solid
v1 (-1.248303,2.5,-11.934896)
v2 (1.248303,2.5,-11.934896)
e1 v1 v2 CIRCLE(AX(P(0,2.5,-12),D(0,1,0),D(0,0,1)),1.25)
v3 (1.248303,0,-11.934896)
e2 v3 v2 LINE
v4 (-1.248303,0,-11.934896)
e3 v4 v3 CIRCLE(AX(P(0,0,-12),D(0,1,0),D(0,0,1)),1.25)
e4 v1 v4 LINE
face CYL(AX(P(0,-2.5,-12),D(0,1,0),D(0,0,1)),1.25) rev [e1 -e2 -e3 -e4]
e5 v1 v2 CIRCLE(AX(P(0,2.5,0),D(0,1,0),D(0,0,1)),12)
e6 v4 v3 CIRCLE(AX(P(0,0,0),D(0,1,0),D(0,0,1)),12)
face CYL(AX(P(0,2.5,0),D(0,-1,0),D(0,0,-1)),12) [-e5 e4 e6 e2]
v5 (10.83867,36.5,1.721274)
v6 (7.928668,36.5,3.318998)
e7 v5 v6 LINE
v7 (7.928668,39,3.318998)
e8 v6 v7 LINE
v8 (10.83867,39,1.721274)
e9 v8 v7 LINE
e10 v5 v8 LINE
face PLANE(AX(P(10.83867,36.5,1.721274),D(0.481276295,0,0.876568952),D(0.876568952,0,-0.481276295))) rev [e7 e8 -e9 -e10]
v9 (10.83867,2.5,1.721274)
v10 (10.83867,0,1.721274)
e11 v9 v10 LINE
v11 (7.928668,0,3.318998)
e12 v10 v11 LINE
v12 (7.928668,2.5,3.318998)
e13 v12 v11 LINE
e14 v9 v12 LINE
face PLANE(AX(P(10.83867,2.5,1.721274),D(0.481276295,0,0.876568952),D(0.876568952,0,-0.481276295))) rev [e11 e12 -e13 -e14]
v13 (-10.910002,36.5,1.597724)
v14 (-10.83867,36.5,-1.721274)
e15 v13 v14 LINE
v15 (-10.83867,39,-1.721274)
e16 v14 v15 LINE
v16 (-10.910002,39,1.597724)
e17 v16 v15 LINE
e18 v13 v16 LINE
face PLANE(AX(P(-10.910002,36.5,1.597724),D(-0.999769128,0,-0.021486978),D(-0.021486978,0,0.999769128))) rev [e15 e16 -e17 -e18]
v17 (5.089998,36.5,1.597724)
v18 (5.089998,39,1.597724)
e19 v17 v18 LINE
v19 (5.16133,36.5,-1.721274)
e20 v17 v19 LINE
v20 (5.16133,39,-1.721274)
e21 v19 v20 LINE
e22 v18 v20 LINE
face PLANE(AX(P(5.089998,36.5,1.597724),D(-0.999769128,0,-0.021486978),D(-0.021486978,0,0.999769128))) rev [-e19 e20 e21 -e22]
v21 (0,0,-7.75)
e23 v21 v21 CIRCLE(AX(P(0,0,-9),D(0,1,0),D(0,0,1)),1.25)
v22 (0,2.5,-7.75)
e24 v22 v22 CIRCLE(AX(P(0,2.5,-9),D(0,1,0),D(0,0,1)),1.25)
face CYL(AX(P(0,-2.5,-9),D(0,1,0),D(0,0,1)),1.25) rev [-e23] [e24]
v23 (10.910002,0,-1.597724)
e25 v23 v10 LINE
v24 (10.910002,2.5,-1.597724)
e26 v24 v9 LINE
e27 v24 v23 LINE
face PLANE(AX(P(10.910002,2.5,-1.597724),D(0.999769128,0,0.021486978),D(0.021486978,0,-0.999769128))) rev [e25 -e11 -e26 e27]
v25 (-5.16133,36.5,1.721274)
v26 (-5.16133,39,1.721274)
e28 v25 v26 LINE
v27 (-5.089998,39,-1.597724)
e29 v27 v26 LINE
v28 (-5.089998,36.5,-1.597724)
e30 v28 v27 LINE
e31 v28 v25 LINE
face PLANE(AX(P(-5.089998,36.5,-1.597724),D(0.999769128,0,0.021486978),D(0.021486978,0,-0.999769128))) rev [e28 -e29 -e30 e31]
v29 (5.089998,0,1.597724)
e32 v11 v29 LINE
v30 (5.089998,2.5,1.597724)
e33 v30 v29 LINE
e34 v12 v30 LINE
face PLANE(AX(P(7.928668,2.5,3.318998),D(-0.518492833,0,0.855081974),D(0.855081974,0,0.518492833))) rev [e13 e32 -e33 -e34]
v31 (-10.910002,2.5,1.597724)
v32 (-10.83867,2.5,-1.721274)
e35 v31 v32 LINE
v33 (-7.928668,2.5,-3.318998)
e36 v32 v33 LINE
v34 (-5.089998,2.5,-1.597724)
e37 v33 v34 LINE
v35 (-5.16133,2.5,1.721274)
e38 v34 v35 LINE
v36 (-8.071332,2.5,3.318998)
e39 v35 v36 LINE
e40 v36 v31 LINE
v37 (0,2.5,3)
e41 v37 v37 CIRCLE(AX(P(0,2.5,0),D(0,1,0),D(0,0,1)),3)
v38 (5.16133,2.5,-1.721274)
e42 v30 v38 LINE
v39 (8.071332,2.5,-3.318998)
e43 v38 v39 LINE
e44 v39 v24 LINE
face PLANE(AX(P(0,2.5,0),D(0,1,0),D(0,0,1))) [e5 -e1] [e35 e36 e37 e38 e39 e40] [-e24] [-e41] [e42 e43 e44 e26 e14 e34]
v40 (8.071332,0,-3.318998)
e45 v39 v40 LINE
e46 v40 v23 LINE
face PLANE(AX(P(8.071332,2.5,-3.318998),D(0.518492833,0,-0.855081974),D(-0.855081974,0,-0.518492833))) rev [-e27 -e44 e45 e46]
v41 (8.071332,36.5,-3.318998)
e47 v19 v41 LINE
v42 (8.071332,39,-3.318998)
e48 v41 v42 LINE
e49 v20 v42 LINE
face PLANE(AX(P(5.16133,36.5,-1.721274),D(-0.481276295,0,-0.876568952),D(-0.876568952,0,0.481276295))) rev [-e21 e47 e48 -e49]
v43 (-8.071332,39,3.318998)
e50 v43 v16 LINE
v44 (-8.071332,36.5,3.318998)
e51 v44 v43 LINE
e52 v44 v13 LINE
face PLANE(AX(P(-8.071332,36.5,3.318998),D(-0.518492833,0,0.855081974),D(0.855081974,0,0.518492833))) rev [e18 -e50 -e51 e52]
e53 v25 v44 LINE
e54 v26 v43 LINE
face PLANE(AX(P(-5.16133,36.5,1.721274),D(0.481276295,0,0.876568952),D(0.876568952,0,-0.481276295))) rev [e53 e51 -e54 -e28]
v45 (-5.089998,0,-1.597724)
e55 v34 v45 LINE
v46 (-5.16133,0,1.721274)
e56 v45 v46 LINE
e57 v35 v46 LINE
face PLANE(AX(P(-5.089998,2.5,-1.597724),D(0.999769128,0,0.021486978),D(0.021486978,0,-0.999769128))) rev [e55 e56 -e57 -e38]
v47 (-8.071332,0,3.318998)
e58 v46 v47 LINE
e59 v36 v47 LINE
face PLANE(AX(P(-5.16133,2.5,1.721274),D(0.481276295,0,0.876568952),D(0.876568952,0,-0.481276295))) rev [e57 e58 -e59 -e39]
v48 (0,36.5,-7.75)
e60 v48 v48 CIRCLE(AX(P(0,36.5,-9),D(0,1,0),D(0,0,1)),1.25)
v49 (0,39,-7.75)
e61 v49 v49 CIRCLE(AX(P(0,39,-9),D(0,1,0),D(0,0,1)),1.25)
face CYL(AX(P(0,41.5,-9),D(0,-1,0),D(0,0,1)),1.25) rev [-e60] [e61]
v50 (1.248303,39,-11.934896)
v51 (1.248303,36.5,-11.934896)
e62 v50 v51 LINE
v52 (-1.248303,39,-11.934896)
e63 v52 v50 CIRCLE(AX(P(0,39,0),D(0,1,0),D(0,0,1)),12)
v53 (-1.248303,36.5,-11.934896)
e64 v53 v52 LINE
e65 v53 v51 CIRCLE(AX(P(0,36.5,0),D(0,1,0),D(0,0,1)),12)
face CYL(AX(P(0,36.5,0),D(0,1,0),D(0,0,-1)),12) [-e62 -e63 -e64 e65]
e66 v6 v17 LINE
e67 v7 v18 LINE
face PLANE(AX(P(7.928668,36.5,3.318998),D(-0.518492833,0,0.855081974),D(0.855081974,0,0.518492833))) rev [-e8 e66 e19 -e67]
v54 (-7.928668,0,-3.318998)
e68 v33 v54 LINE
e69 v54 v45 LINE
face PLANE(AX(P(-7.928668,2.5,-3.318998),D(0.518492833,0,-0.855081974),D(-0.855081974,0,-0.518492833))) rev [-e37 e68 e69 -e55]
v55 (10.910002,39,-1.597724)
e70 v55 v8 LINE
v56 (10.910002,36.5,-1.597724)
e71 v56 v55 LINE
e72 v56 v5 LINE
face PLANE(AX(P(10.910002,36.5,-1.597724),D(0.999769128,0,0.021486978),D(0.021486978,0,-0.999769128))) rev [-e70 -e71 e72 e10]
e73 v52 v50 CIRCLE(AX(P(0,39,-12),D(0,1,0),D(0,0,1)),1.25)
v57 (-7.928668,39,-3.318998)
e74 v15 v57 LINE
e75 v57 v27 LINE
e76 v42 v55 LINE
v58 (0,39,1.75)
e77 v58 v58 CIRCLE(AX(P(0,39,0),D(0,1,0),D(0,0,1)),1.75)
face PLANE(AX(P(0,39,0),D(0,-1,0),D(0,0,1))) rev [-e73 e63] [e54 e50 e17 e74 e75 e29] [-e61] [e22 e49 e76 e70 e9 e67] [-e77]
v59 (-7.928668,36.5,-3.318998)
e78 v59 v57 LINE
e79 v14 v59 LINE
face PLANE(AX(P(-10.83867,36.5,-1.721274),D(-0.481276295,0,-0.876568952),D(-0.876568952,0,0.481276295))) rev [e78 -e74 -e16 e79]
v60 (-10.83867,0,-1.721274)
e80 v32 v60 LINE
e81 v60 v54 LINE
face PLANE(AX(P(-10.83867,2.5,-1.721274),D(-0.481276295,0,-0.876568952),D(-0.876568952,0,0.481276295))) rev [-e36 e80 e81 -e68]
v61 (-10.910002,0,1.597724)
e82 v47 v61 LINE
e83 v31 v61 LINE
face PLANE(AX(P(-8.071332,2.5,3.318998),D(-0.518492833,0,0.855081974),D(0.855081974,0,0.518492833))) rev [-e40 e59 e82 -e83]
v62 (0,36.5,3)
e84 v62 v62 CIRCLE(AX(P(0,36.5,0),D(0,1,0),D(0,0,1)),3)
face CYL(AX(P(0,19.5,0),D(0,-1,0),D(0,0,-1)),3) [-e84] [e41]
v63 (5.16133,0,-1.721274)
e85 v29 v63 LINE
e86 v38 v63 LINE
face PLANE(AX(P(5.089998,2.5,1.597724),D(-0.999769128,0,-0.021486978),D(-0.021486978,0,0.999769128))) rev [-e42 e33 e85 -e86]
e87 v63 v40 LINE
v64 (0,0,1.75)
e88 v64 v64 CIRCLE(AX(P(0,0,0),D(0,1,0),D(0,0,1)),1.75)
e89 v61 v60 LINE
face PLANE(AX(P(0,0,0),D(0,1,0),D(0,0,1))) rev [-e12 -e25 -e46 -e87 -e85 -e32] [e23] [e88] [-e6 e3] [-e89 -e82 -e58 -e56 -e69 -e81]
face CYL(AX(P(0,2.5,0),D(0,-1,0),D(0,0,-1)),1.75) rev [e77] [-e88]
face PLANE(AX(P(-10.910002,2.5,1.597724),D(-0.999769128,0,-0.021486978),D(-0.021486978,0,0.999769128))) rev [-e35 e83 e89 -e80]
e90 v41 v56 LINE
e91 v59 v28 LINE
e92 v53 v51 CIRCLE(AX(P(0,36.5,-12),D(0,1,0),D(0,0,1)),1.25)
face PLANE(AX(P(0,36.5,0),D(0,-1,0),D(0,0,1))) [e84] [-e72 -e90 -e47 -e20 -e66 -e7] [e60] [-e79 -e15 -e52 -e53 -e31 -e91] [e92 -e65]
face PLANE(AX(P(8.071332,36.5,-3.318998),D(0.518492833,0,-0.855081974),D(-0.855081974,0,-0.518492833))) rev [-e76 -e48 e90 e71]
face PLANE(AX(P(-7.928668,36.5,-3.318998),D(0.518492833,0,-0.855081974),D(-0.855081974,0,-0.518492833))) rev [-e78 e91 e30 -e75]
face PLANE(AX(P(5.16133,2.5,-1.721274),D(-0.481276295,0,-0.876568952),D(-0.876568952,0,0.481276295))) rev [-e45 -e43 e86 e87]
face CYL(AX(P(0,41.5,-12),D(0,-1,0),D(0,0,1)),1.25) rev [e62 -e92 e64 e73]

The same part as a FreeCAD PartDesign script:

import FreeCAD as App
import Part
import Sketcher

V = App.Vector
Q = App.Units.Quantity


def add_polygon(sketch, points):
    """Adds a closed chain of lines whose ends are joined by coincident constraints."""
    first, n = sketch.GeometryCount, len(points)
    for a, b in zip(points, points[1:] + points[:1]):
        sketch.addGeometry(Part.LineSegment(App.Vector(*a, 0), App.Vector(*b, 0)), False)
    for i in range(n):
        sketch.addConstraint(Sketcher.Constraint("Coincident", first + i, 2, first + (i + 1) % n, 1))

doc = App.newDocument("Part")
params = doc.addObject("Spreadsheet::Sheet", "Params")
for row, (alias, value) in enumerate([
    ("sketch1_diameter", "24 mm"),
    ("sketch1_diameter2", "3.5 mm"),
    ("pad1_length", "2.5 mm"),
    ("pocket1_length", "2.5 mm"),
    ("sketch3_diameter", "2.5 mm"),
    ("pocket2_length", "5 mm"),
    ("sketch4_diameter", "6 mm"),
    ("sketch4_diameter2", "3.5 mm"),
    ("pad2_length", "17 mm"),
], start=1):
    params.set(f"A{row}", alias)
    params.set(f"B{row}", "=" + value)
    params.setAlias(f"B{row}", alias)

body = doc.addObject("PartDesign::Body", "Body")

# Sketch on XZ plane
sketch1 = body.newObject("Sketcher::SketchObject", "Sketch")
sketch1.AttachmentSupport = (doc.getObject("XZ_Plane"), [""])
sketch1.MapMode = "FlatFace"
sketch1.addGeometry(Part.Circle(V(0, 0, 0), V(0, 0, 1), 12), False)
sketch1.addGeometry(Part.Circle(V(0, 0, 0), V(0, 0, 1), 1.8), False)
sketch1.addConstraint(Sketcher.Constraint("Coincident", 0, 3, -1, 1))
sketch1.addConstraint(Sketcher.Constraint("Coincident", 1, 3, -1, 1))
sketch1.addConstraint(Sketcher.Constraint("Diameter", 0, Q("24 mm")))
sketch1.addConstraint(Sketcher.Constraint("Diameter", 1, Q("3.5 mm")))
sketch1.setExpression("Constraints[2]", "Params.sketch1_diameter")
sketch1.setExpression("Constraints[3]", "Params.sketch1_diameter2")
pad1 = body.newObject("PartDesign::Pad", "Pad")
pad1.Profile = sketch1
pad1.setExpression("Length", "Params.pad1_length")
pad1.Reversed = True

# Sketch on XZ plane
sketch2 = body.newObject("Sketcher::SketchObject", "Sketch001")
sketch2.AttachmentSupport = (doc.getObject("XZ_Plane"), [""])
sketch2.MapMode = "FlatFace"
add_polygon(sketch2, [(-5.2, 1.7), (-8.1, 3.3), (-10.9, 1.6), (-10.8, -1.7), (-7.9, -3.3), (-5.1, -1.6)])  # lines 0-5
add_polygon(sketch2, [(5.2, -1.7), (8.1, -3.3), (10.9, -1.6), (10.8, 1.7), (7.9, 3.3), (5.1, 1.6)])  # lines 6-11
sketch2.addConstraint(Sketcher.Constraint("Symmetric", 0, 2, 6, 2, -1, 1))
sketch2.addConstraint(Sketcher.Constraint("Symmetric", 1, 2, 7, 2, -1, 1))
sketch2.addConstraint(Sketcher.Constraint("Symmetric", 2, 2, 8, 2, -1, 1))
sketch2.addConstraint(Sketcher.Constraint("Symmetric", 3, 2, 9, 2, -1, 1))
sketch2.addConstraint(Sketcher.Constraint("Symmetric", 4, 2, 10, 2, -1, 1))
sketch2.addConstraint(Sketcher.Constraint("Symmetric", 5, 2, 11, 2, -1, 1))
sketch2.addConstraint(Sketcher.Constraint("Parallel", 0, 3))
sketch2.addConstraint(Sketcher.Constraint("Parallel", 1, 4))
sketch2.addConstraint(Sketcher.Constraint("Parallel", 2, 5))
sketch2.addConstraint(Sketcher.Constraint("Horizontal", 3, 2, 6, 2))
sketch2.addConstraint(Sketcher.Constraint("Horizontal", 4, 2, 7, 2))
sketch2.addConstraint(Sketcher.Constraint("Equal", 0, 1))
sketch2.addConstraint(Sketcher.Constraint("Equal", 1, 2))
sketch2.addConstraint(Sketcher.Constraint("DistanceX", 3, 2, 6, 2, Q("16 mm")))
sketch2.addConstraint(Sketcher.Constraint("DistanceX", 0, 2, -1, 1, Q("8.071332 mm")))
sketch2.addConstraint(Sketcher.Constraint("DistanceX", 2, 2, -1, 1, Q("10.83867 mm")))
sketch2.addConstraint(Sketcher.Constraint("DistanceX", 1, 2, 0, 2, Q("2.83867 mm")))
sketch2.addConstraint(Sketcher.Constraint("DistanceY", 2, 2, 0, 2, Q("5.040271 mm")))
pocket1 = body.newObject("PartDesign::Pocket", "Pocket")
pocket1.Profile = sketch2
pocket1.setExpression("Length", "Params.pocket1_length")

# Sketch on XZ plane
sketch3 = body.newObject("Sketcher::SketchObject", "Sketch002")
sketch3.AttachmentSupport = (doc.getObject("XZ_Plane"), [""])
sketch3.MapMode = "FlatFace"
sketch3.AttachmentOffset = App.Placement(V(0, 0, -2.5), App.Rotation())
sketch3.addGeometry(Part.Circle(V(0, -9, 0), V(0, 0, 1), 1.2), False)
sketch3.addGeometry(Part.Circle(V(0, -12, 0), V(0, 0, 1), 1.2), False)
sketch3.addConstraint(Sketcher.Constraint("Equal", 0, 1))
sketch3.addConstraint(Sketcher.Constraint("PointOnObject", 0, 3, -2))
sketch3.addConstraint(Sketcher.Constraint("PointOnObject", 1, 3, -2))
sketch3.addConstraint(Sketcher.Constraint("Diameter", 0, Q("2.5 mm")))
sketch3.addConstraint(Sketcher.Constraint("DistanceY", 0, 3, -1, 1, Q("9 mm")))
sketch3.addConstraint(Sketcher.Constraint("DistanceY", 1, 3, -1, 1, Q("12 mm")))
sketch3.setExpression("Constraints[3]", "Params.sketch3_diameter")
pocket2 = body.newObject("PartDesign::Pocket", "Pocket001")
pocket2.Profile = sketch3
pocket2.setExpression("Length", "Params.pocket2_length")
pocket2.Reversed = True

# Sketch on XZ plane
sketch4 = body.newObject("Sketcher::SketchObject", "Sketch003")
sketch4.AttachmentSupport = (doc.getObject("XZ_Plane"), [""])
sketch4.MapMode = "FlatFace"
sketch4.AttachmentOffset = App.Placement(V(0, 0, -2.5), App.Rotation())
sketch4.addGeometry(Part.Circle(V(0, 0, 0), V(0, 0, 1), 3), False)
sketch4.addGeometry(Part.Circle(V(0, 0, 0), V(0, 0, 1), 1.8), False)
sketch4.addConstraint(Sketcher.Constraint("Coincident", 0, 3, -1, 1))
sketch4.addConstraint(Sketcher.Constraint("Coincident", 1, 3, -1, 1))
sketch4.addConstraint(Sketcher.Constraint("Diameter", 0, Q("6 mm")))
sketch4.addConstraint(Sketcher.Constraint("Diameter", 1, Q("3.5 mm")))
sketch4.setExpression("Constraints[2]", "Params.sketch4_diameter")
sketch4.setExpression("Constraints[3]", "Params.sketch4_diameter2")
pad2 = body.newObject("PartDesign::Pad", "Pad001")
pad2.Profile = sketch4
pad2.setExpression("Length", "Params.pad2_length")
pad2.Reversed = True
body2 = doc.addObject("PartDesign::Body", "Body001")
doc.recompute()

body2.BaseFeature = body
doc.recompute()

mirroring = doc.addObject("Part::Mirroring", "Mirroring")
mirroring.Source = body
mirroring.Base = V(0, 19.5, 0)
mirroring.Normal = V(0, 1, 0)
body3 = doc.addObject("PartDesign::Body", "Body002")
body3.BaseFeature = mirroring
boolean = body2.newObject("PartDesign::Boolean", "Boolean")
boolean.Type = "Fuse"
boolean.addObjects([body3])
doc.recompute()
mirroring.Visibility = False

doc.recompute()
